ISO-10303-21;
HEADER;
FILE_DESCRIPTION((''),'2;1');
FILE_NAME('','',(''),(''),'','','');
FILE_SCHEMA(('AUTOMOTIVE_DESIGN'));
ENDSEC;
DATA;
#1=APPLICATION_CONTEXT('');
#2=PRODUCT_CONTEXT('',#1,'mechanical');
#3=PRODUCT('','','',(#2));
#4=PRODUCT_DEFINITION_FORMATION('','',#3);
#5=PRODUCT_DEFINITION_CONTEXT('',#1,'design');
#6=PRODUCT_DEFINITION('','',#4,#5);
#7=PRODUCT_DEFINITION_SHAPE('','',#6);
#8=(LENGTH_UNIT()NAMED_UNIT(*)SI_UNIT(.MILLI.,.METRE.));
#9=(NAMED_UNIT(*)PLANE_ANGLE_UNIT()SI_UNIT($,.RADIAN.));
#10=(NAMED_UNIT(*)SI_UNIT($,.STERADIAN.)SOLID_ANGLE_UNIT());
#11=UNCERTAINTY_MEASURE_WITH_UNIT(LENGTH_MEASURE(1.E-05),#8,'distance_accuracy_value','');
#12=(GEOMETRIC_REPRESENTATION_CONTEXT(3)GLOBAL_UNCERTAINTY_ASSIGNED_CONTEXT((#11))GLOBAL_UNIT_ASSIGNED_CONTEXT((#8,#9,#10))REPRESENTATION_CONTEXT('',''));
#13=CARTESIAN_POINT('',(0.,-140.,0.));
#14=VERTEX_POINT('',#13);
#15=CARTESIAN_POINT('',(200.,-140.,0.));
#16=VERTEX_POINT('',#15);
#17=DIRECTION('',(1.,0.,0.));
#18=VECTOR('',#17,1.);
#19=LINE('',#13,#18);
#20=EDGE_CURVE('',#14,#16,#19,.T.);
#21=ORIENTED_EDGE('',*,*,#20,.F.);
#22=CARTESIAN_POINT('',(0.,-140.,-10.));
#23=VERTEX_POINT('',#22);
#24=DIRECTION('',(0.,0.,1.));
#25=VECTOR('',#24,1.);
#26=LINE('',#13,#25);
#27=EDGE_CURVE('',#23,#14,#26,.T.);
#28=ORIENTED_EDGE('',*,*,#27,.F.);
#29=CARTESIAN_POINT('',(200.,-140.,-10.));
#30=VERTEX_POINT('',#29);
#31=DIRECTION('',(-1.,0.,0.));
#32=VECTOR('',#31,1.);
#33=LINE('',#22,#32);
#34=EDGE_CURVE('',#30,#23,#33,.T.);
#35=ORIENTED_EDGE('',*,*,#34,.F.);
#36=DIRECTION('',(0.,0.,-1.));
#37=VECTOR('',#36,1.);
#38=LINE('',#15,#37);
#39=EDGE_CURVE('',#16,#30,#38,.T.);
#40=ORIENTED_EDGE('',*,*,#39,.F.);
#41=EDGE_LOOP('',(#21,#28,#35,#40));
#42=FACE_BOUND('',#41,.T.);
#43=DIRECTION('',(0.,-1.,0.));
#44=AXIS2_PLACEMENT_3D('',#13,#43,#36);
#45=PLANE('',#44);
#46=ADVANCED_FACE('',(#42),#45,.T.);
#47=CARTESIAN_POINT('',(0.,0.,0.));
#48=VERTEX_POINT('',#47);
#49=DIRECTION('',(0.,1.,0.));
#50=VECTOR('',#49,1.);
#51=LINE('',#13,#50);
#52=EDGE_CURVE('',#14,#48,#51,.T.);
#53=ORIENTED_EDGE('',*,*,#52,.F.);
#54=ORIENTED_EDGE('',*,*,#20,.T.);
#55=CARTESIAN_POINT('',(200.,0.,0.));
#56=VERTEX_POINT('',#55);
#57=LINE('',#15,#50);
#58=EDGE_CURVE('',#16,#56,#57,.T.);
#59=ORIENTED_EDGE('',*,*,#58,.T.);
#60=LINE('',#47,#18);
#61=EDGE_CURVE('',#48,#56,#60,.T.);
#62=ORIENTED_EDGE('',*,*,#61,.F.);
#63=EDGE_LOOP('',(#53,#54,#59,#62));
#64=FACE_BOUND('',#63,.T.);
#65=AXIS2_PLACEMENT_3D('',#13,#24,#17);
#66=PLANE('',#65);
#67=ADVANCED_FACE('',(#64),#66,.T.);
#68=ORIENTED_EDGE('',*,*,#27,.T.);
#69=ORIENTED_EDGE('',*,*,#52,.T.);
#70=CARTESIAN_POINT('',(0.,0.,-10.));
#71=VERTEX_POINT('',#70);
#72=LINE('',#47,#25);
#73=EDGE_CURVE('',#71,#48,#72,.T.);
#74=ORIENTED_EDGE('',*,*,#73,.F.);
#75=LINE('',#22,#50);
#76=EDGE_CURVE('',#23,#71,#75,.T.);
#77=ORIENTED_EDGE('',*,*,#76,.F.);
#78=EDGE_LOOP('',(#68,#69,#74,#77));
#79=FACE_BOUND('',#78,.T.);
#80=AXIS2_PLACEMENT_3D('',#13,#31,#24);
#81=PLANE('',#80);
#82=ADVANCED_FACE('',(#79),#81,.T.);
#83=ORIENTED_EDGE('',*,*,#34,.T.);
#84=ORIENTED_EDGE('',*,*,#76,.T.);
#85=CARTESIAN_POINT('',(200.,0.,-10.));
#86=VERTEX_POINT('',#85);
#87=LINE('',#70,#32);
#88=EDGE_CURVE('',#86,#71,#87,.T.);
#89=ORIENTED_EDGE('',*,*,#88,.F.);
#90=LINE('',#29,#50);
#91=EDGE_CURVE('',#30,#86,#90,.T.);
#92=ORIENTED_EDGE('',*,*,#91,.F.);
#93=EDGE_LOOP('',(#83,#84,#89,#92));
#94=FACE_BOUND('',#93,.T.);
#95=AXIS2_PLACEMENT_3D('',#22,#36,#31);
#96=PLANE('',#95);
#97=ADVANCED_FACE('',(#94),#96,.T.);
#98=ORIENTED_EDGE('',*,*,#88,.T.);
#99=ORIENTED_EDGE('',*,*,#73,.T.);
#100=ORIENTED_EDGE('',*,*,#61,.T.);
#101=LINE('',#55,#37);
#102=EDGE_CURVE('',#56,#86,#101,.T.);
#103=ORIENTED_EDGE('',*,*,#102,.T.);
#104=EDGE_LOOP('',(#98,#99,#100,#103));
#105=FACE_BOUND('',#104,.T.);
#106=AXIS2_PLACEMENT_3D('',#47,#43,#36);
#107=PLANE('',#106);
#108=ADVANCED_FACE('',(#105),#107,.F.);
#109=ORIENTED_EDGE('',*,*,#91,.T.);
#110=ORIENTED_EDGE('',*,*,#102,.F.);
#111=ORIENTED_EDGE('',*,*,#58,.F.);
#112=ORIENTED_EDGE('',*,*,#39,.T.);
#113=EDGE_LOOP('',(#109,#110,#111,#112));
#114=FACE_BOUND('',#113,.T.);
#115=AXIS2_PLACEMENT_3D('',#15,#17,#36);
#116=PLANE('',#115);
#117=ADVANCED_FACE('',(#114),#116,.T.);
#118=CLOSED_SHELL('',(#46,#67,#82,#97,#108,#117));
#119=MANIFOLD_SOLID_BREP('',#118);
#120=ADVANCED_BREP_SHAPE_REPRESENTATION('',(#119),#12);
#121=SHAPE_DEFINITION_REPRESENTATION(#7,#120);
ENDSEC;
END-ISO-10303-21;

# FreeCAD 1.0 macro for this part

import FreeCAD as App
import Part
import Sketcher
from FreeCAD import Vector

doc = App.newDocument("Part")
body = doc.addObject("PartDesign::Body", "Body")

sketch1 = body.newObject("Sketcher::SketchObject", "Sketch")
sketch1.AttachmentSupport = (doc.getObject("XZ_Plane"), [""])
sketch1.MapMode = "FlatFace"
sketch1.addGeometry([
    Part.LineSegment(Vector(0, -10, 0), Vector(0, 0, 0)),
    Part.LineSegment(Vector(0, 0, 0), Vector(200, 0, 0)),
    Part.LineSegment(Vector(200, 0, 0), Vector(200, -10, 0)),
    Part.LineSegment(Vector(200, -10, 0), Vector(0, -10, 0)),
], False)
sketch1.addConstraint([
    Sketcher.Constraint("Coincident", 0, 2, 1, 1),
    Sketcher.Constraint("Coincident", 1, 2, 2, 1),
    Sketcher.Constraint("Coincident", 2, 2, 3, 1),
    Sketcher.Constraint("Coincident", 3, 2, 0, 1),
    Sketcher.Constraint("Vertical", 0),
    Sketcher.Constraint("Horizontal", 1),
    Sketcher.Constraint("Vertical", 2),
    Sketcher.Constraint("Horizontal", 3),
    Sketcher.Constraint("Coincident", 0, 2, -1, 1),
    Sketcher.Constraint("DistanceX", 1, 1, 1, 2, 200.0),
    Sketcher.Constraint("DistanceY", 0, 1, 0, 2, 10.0),
])
pad1 = body.newObject("PartDesign::Pad", "Pad")
pad1.Profile = sketch1
pad1.Length = 140

doc.recompute()
